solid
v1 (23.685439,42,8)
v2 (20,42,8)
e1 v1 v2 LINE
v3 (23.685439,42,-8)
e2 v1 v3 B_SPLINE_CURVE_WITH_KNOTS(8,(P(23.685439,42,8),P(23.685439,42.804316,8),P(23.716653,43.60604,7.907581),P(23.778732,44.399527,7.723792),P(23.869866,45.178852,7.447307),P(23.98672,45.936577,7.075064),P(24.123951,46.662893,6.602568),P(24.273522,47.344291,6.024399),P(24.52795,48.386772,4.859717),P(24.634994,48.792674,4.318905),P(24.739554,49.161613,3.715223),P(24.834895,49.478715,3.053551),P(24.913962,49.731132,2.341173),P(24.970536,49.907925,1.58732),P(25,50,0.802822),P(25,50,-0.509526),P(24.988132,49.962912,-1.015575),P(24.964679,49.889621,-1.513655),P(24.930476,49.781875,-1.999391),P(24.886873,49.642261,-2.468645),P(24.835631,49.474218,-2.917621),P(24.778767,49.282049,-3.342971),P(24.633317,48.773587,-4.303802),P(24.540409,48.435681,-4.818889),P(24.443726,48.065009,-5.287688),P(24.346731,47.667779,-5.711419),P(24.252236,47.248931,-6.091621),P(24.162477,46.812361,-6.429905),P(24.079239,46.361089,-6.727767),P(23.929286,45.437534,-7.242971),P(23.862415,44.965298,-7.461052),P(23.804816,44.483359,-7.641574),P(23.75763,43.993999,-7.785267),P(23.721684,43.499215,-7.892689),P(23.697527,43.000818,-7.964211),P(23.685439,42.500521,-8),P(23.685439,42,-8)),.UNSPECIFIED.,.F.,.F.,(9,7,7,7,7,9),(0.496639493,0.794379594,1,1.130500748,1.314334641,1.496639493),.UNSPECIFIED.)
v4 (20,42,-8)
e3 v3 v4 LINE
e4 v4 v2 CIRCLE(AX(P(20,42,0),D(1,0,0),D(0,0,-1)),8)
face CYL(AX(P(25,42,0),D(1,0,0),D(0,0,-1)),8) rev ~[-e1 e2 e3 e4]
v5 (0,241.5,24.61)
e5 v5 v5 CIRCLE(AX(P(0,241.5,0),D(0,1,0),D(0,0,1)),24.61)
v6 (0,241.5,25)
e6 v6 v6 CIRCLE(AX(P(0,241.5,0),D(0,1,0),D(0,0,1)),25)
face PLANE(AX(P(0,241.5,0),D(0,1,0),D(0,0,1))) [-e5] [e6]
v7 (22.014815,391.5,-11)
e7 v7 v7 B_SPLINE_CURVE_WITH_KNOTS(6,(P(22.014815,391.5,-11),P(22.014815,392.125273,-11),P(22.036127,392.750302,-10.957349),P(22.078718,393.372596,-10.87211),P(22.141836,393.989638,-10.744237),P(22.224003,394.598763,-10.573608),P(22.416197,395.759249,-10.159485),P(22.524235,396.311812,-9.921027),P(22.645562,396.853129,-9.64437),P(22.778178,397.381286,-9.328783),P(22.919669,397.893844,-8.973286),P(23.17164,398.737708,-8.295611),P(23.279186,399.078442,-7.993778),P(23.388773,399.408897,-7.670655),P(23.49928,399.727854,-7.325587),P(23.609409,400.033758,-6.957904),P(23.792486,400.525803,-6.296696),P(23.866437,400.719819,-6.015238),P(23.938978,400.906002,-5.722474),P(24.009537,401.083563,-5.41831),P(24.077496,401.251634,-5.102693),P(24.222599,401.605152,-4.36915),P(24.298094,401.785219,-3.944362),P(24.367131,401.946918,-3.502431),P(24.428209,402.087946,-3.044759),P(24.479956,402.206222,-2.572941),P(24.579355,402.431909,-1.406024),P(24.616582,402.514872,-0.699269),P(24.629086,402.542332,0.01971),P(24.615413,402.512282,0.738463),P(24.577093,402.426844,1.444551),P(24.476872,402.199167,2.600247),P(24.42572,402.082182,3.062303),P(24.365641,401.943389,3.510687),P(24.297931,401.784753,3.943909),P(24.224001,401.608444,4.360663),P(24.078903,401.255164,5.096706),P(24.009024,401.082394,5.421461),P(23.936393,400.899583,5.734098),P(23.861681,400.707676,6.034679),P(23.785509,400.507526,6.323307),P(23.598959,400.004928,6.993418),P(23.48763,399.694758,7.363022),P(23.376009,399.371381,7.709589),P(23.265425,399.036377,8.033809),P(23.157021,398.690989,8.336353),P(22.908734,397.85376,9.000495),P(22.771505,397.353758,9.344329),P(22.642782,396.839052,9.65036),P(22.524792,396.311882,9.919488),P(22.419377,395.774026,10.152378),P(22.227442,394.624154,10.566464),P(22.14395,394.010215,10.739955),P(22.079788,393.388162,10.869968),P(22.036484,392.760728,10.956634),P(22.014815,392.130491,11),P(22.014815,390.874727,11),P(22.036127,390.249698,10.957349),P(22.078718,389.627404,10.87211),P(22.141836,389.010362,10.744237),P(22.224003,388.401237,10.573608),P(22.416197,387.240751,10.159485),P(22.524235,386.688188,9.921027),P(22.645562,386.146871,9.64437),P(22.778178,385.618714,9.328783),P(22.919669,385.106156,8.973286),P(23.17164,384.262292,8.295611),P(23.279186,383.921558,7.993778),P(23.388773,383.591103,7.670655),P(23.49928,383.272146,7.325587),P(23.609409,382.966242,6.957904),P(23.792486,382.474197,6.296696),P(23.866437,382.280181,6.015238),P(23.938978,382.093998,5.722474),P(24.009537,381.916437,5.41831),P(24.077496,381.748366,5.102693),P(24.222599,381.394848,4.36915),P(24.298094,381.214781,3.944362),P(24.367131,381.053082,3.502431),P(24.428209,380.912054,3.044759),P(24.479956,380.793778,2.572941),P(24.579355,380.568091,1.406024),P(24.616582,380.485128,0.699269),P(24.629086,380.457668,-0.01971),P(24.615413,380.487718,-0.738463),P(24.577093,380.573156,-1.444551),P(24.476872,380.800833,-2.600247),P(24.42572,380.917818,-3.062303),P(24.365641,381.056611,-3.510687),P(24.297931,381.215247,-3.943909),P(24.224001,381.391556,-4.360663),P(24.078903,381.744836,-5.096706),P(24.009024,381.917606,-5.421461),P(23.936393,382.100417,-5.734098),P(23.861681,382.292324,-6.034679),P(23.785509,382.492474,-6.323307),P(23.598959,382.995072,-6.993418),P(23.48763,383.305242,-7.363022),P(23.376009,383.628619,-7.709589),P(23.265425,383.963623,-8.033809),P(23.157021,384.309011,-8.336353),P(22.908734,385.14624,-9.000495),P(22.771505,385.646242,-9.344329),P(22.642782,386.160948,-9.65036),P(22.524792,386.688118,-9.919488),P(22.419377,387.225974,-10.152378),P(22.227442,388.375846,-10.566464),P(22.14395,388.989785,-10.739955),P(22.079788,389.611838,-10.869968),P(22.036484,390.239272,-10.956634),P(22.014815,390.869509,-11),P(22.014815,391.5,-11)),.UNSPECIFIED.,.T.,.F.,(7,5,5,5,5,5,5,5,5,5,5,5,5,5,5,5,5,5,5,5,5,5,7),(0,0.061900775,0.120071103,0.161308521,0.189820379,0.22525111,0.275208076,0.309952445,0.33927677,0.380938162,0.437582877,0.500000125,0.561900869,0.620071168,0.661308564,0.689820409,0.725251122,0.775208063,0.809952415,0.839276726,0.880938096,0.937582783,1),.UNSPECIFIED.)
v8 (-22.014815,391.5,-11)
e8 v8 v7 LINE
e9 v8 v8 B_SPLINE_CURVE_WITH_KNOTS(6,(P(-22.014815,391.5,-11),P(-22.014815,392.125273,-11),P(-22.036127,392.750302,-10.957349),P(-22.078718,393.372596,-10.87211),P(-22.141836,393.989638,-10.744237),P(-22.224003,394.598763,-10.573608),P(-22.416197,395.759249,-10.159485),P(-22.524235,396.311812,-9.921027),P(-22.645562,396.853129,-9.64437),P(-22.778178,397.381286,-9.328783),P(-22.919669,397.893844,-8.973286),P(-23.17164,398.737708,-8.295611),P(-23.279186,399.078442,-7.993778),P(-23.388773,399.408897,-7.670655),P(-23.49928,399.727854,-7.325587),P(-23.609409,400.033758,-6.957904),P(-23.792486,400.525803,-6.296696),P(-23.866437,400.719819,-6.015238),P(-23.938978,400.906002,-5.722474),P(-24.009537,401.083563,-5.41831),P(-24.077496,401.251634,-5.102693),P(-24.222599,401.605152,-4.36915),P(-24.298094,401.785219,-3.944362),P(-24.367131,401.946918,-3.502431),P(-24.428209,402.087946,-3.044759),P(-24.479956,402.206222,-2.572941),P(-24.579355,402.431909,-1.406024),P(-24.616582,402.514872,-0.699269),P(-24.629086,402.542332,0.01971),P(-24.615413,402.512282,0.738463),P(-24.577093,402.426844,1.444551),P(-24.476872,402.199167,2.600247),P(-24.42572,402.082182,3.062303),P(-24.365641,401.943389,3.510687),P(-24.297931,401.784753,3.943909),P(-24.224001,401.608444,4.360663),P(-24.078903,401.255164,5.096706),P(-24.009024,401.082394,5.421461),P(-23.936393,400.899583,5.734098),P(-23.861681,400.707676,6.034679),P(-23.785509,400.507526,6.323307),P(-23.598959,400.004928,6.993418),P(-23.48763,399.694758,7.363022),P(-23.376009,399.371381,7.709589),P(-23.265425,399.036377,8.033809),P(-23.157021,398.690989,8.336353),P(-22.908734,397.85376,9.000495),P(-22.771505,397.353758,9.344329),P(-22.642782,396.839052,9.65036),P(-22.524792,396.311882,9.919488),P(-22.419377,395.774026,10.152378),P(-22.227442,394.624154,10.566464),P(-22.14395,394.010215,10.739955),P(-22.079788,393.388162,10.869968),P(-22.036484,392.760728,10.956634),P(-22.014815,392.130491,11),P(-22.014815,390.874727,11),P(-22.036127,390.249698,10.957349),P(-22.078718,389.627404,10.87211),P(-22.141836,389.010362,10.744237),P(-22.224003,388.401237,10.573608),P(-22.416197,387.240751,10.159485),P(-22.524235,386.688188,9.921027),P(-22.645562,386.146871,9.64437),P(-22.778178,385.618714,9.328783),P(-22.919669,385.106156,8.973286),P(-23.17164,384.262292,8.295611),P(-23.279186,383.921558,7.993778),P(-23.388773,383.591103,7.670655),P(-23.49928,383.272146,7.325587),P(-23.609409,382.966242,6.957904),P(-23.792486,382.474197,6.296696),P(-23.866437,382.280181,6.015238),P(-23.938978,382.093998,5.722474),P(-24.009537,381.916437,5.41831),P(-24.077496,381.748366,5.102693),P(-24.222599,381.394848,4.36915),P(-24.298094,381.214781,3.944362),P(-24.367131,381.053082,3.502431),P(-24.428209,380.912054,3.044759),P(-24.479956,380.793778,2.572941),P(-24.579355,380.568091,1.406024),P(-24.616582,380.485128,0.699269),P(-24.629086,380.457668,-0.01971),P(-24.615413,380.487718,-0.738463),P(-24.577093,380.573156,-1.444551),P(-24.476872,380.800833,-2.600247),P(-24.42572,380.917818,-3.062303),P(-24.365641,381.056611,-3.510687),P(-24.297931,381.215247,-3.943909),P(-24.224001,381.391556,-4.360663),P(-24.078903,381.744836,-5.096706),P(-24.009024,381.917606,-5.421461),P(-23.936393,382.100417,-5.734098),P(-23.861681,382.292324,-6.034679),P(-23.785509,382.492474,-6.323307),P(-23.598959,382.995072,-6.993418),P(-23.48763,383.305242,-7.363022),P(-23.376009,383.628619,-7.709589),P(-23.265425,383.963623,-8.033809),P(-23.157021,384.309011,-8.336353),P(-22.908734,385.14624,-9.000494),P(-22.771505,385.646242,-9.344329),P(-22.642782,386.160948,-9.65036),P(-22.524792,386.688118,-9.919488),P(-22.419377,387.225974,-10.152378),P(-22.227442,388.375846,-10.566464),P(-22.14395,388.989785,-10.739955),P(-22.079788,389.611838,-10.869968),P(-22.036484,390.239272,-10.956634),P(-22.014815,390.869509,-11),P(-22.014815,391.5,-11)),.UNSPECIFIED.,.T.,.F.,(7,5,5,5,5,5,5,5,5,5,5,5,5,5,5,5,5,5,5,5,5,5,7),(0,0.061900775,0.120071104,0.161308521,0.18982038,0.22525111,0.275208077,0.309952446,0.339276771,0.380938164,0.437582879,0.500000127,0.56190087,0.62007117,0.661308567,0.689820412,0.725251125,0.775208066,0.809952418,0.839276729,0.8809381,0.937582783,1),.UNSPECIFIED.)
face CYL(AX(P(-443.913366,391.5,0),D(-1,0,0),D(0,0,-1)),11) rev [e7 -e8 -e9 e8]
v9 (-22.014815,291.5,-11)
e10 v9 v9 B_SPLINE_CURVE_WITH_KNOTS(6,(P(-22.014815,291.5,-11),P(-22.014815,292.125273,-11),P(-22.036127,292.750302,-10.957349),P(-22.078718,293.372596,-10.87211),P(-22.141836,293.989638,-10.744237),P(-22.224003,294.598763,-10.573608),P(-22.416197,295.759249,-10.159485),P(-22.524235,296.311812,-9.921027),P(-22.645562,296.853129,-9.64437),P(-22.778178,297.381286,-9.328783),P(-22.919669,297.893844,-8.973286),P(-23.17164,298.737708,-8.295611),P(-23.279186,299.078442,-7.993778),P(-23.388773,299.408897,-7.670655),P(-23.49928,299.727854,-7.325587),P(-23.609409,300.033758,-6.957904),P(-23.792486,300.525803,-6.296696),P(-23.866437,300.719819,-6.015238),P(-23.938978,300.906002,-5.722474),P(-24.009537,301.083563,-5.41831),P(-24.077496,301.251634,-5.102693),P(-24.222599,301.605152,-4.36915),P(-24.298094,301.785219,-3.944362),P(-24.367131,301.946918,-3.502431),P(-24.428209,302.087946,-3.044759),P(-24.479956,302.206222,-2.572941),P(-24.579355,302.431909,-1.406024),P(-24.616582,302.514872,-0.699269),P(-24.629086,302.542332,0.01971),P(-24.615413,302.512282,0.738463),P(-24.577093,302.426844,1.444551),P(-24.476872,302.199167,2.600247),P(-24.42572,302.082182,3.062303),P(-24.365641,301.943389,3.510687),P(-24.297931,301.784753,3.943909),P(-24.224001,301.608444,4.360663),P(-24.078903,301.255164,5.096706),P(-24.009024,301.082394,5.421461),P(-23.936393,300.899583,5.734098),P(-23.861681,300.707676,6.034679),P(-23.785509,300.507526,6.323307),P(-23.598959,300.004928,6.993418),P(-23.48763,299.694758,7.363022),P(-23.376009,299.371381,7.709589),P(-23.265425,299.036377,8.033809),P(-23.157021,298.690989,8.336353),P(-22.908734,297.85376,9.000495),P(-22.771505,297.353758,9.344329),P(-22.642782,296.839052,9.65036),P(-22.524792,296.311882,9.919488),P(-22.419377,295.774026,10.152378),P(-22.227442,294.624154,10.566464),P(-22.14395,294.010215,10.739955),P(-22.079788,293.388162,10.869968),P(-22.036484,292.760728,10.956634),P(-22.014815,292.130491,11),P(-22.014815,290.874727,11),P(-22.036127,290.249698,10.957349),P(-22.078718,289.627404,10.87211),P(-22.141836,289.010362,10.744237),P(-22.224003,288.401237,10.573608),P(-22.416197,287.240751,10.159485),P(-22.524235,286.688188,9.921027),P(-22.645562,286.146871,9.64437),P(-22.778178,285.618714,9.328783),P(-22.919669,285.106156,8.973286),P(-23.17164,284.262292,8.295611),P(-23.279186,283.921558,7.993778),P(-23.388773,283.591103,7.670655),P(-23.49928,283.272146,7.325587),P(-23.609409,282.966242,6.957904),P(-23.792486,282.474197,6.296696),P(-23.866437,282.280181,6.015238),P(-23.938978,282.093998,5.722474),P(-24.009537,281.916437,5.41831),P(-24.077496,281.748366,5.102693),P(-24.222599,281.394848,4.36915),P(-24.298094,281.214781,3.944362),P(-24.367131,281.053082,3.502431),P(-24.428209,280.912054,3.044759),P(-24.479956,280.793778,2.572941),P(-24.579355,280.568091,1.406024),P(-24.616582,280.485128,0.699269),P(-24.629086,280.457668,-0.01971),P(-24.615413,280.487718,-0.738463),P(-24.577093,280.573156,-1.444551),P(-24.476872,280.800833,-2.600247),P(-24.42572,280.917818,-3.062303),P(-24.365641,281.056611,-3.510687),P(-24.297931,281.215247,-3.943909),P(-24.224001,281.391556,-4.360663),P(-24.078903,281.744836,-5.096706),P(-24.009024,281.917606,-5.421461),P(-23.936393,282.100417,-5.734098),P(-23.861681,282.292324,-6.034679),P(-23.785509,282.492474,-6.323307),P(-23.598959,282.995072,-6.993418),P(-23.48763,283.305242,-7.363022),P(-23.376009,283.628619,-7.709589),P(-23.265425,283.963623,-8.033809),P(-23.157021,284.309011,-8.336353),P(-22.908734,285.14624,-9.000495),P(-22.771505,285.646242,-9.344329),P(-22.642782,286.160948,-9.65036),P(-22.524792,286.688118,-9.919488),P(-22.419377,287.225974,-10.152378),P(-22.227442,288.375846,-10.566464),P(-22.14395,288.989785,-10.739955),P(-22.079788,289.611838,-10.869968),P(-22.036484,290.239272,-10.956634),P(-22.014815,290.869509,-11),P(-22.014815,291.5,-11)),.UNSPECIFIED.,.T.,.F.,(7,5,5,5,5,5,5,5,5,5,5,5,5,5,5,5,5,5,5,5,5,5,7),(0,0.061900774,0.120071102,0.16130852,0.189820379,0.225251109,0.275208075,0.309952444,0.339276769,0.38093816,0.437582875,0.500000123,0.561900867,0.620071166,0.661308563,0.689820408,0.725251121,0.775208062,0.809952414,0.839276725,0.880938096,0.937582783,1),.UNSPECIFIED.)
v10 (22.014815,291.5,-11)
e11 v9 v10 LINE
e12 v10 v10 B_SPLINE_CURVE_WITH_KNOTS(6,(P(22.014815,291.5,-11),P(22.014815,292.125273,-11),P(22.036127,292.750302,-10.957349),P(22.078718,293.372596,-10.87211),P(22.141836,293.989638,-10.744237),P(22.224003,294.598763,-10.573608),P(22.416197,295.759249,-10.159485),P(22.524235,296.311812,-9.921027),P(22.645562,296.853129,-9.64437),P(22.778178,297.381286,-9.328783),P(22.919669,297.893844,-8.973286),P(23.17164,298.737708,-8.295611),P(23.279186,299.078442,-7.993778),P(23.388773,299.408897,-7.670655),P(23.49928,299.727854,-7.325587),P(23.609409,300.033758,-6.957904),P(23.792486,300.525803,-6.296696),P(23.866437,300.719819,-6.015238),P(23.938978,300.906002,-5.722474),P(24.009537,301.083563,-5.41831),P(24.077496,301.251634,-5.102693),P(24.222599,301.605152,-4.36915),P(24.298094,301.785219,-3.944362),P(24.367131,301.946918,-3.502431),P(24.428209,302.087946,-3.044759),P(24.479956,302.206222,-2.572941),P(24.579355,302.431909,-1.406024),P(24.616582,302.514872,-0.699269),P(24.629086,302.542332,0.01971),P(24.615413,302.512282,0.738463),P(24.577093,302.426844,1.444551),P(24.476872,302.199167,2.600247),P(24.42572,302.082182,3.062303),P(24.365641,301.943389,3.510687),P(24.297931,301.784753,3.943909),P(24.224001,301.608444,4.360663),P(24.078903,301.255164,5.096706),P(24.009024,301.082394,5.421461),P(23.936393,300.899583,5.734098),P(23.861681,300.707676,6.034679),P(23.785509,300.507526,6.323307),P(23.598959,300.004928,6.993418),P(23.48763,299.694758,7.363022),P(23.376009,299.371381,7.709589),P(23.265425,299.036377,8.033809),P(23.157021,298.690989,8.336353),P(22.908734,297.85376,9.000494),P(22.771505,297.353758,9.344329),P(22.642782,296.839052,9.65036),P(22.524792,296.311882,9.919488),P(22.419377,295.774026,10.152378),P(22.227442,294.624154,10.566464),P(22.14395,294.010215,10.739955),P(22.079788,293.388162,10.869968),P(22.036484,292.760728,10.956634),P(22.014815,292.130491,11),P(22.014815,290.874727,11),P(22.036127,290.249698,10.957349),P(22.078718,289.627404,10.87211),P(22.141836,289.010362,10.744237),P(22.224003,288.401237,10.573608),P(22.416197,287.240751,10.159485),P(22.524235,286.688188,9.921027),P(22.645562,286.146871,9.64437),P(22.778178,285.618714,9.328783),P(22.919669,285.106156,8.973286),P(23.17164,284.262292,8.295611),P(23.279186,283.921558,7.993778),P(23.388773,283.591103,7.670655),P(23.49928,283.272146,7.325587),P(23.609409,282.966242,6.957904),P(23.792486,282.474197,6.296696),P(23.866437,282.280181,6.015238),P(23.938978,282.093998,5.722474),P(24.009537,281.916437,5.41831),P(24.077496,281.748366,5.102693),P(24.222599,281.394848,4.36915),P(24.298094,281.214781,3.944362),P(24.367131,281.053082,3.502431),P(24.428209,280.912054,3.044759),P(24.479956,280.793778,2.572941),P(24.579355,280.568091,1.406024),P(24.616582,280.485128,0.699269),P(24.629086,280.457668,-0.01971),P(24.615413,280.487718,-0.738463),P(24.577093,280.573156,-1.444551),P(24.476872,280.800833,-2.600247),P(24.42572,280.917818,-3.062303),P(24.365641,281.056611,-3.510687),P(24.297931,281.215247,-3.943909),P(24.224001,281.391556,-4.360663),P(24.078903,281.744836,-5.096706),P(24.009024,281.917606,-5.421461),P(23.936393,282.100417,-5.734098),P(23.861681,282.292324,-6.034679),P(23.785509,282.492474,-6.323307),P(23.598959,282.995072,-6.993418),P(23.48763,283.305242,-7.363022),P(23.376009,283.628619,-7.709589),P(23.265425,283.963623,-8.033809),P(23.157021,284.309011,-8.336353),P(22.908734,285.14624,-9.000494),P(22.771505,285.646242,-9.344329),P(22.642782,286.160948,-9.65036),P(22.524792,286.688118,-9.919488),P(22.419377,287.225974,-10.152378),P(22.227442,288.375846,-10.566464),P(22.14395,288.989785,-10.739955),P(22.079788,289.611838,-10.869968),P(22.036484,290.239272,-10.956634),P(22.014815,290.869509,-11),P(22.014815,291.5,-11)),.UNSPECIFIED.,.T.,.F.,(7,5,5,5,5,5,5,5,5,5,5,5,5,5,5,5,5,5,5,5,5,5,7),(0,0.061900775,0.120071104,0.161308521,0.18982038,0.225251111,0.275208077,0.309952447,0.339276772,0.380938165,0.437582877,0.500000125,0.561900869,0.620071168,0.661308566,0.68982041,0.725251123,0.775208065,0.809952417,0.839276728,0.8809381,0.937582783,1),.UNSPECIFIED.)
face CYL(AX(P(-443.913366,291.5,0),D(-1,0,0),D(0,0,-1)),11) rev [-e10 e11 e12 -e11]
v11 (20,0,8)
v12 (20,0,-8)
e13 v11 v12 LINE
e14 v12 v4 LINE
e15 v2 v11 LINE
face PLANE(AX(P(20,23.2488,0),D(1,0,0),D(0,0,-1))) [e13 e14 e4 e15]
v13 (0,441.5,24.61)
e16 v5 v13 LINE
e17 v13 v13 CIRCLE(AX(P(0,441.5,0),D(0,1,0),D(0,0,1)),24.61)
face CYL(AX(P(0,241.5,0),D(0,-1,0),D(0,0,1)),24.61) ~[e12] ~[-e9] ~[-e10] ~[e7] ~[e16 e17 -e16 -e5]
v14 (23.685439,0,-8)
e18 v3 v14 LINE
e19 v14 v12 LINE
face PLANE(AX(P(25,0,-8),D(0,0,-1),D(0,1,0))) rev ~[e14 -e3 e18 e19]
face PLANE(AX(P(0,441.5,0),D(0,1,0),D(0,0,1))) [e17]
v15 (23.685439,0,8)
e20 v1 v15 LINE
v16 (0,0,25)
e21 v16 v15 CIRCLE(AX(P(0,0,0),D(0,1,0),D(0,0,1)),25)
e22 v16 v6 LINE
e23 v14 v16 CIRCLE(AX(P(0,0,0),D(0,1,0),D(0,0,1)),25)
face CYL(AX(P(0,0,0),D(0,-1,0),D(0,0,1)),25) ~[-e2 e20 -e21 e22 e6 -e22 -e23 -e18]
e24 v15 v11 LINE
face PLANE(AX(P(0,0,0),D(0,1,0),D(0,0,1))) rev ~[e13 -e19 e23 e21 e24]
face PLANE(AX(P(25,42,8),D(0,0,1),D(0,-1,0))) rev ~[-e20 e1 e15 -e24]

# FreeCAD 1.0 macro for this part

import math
import FreeCAD as App
import Part
import Sketcher
Q = App.Units.Quantity

doc = App.newDocument("Part")
body = doc.addObject("PartDesign::Body", "Body")

# Sketch on XZ plane
sketch1 = body.newObject("Sketcher::SketchObject", "Sketch")
sketch1.AttachmentSupport = (doc.getObject("XZ_Plane"), [""])
sketch1.MapMode = "FlatFace"
sketch1.addGeometry(Part.Circle(App.Vector(0, 0, 0), App.Vector(0, 0, 1), 25), False)
sketch1.addConstraint([
    Sketcher.Constraint("Coincident", 0, 3, -1, 1),
    Sketcher.Constraint("Diameter", 0, Q("50 mm")),
])
pad1 = body.newObject("PartDesign::Pad", "Pad")
pad1.Profile = sketch1
pad1.Length = 241.5
pad1.Reversed = True

# Sketch on XZ plane
sketch2 = body.newObject("Sketcher::SketchObject", "Sketch001")
sketch2.AttachmentSupport = (doc.getObject("XZ_Plane"), [""])
sketch2.MapMode = "FlatFace"
sketch2.AttachmentOffset = App.Placement(App.Vector(0, 0, -241.5), App.Rotation())
sketch2.addGeometry(Part.Circle(App.Vector(0, 0, 0), App.Vector(0, 0, 1), 25), False)
sketch2.addConstraint([
    Sketcher.Constraint("Coincident", 0, 3, -1, 1),
    Sketcher.Constraint("Diameter", 0, Q("49.22 mm")),
])
pad2 = body.newObject("PartDesign::Pad", "Pad001")
pad2.Profile = sketch2
pad2.Length = 200
pad2.Reversed = True

# Sketch on YZ plane
sketch3 = body.newObject("Sketcher::SketchObject", "Sketch002")
sketch3.AttachmentSupport = (doc.getObject("YZ_Plane"), [""])
sketch3.MapMode = "FlatFace"
sketch3.AttachmentOffset = App.Placement(App.Vector(0, 0, 25), App.Rotation())
sketch3.addGeometry([
    Part.LineSegment(App.Vector(42, 8, 0), App.Vector(0, 8, 0)),
    Part.LineSegment(App.Vector(0, 8, 0), App.Vector(0, -8, 0)),
    Part.LineSegment(App.Vector(0, -8, 0), App.Vector(42, -8, 0)),
    Part.ArcOfCircle(Part.Circle(App.Vector(42, 0, 0), App.Vector(0, 0, 1), 8), math.radians(-90), math.radians(90)),
], False)
sketch3.addConstraint([
    Sketcher.Constraint("Coincident", 0, 2, 1, 1),
    Sketcher.Constraint("Coincident", 1, 2, 2, 1),
    Sketcher.Constraint("Tangent", 2, 2, 3, 1),
    Sketcher.Constraint("Tangent", 3, 2, 0, 1),
    Sketcher.Constraint("Horizontal", 0),
    Sketcher.Constraint("Vertical", 1),
    Sketcher.Constraint("Horizontal", 2),
    Sketcher.Constraint("Symmetric", 0, 2, 1, 2, -1, 1),
    Sketcher.Constraint("Radius", 3, Q("8 mm")),
    Sketcher.Constraint("DistanceX", 0, 2, 0, 1, Q("42 mm")),
])
pocket1 = body.newObject("PartDesign::Pocket", "Pocket")
pocket1.Profile = sketch3
pocket1.Length = 5

# Sketch on YZ plane
sketch4 = body.newObject("Sketcher::SketchObject", "Sketch003")
sketch4.AttachmentSupport = (doc.getObject("YZ_Plane"), [""])
sketch4.MapMode = "FlatFace"
sketch4.addGeometry([
    Part.Circle(App.Vector(292, 0, 0), App.Vector(0, 0, 1), 11),
    Part.Circle(App.Vector(392, 0, 0), App.Vector(0, 0, 1), 11),
], False)
sketch4.addConstraint([
    Sketcher.Constraint("Equal", 0, 1),
    Sketcher.Constraint("PointOnObject", 0, 3, -1),
    Sketcher.Constraint("PointOnObject", 1, 3, -1),
    Sketcher.Constraint("Diameter", 0, Q("22 mm")),
    Sketcher.Constraint("DistanceX", 0, 3, 1, 3, Q("100 mm")),
    Sketcher.Constraint("DistanceX", -1, 1, 0, 3, Q("291.5 mm")),
])
pocket2 = body.newObject("PartDesign::Pocket", "Pocket001")
pocket2.Profile = sketch4
pocket2.Type = "ThroughAll"
pocket2.Midplane = True

doc.recompute()
